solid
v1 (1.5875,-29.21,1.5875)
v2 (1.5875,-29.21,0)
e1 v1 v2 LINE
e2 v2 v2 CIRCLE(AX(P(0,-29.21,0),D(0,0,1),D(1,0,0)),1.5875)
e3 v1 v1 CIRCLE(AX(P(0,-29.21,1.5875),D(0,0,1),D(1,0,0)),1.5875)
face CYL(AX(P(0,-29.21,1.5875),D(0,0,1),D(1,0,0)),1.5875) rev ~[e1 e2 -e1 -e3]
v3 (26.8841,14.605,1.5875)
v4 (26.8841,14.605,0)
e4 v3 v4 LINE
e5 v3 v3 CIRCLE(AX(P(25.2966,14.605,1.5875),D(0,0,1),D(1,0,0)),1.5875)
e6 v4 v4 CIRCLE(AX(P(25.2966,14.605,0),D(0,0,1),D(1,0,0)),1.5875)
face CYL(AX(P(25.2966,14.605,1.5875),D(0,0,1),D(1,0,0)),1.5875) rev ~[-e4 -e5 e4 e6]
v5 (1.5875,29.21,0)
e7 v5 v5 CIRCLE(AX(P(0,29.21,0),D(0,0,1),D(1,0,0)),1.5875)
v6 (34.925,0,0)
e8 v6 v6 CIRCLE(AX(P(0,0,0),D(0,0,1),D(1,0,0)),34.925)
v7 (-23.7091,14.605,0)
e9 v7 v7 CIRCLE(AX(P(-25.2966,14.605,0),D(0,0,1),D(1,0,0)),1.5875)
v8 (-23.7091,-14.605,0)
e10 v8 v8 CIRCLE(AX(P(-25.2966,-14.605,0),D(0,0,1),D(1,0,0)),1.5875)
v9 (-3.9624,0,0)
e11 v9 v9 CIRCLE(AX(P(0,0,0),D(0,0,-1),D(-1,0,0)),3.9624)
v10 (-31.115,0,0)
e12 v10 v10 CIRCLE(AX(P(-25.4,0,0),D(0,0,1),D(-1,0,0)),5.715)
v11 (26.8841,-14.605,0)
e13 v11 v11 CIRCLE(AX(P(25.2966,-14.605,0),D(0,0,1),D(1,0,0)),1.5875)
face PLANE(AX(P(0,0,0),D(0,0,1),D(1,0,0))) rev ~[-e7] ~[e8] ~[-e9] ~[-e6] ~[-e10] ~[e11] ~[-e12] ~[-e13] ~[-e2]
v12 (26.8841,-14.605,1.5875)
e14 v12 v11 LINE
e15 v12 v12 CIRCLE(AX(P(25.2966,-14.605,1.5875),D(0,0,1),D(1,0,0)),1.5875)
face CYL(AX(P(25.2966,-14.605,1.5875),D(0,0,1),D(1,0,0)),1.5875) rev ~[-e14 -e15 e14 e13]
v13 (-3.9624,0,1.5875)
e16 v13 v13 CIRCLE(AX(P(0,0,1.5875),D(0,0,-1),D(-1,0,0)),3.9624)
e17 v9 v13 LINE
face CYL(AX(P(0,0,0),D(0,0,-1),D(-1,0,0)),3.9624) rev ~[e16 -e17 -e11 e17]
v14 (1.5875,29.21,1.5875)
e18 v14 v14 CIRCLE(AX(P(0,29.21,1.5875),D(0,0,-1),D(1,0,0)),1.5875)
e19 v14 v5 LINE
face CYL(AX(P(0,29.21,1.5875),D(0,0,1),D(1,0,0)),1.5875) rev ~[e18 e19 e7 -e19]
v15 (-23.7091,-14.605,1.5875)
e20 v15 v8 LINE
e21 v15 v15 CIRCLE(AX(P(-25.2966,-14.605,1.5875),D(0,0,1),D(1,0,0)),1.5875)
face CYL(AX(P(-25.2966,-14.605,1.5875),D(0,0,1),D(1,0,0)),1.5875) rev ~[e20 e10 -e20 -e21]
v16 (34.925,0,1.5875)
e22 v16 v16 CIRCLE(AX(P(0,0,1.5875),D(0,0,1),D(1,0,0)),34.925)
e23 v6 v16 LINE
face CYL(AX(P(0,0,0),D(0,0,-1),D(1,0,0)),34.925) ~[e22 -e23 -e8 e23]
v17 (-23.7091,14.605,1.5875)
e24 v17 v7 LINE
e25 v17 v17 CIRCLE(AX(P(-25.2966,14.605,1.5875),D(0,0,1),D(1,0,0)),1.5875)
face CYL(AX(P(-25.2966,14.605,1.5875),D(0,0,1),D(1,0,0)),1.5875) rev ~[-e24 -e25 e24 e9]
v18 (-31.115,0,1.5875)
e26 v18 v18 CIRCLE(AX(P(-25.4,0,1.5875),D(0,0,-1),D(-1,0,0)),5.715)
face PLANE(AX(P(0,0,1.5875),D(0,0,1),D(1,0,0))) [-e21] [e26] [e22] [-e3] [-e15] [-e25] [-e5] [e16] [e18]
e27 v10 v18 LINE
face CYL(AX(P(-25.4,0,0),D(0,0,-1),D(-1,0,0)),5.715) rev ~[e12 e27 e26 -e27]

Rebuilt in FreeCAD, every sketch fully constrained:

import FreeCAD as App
import Part
import Sketcher
from FreeCAD import Vector
Q = App.Units.Quantity

doc = App.newDocument("Part")
body = doc.addObject("PartDesign::Body", "Body")

sketch1 = body.newObject("Sketcher::SketchObject", "Sketch")
sketch1.AttachmentSupport = (doc.getObject("XY_Plane"), [""])
sketch1.MapMode = "FlatFace"
sketch1.addGeometry(Part.Circle(Vector(0, 0, 0), Vector(0, 0, 1), 35), False)
sketch1.addConstraint([
    Sketcher.Constraint("Coincident", 0, 3, -1, 1),
    Sketcher.Constraint("Diameter", 0, Q("2.75 in")),
])
pad1 = body.newObject("PartDesign::Pad", "Pad")
pad1.Profile = sketch1
pad1.Length = Q("0.0625 in")

sketch2 = body.newObject("Sketcher::SketchObject", "Sketch001")
sketch2.AttachmentSupport = (doc.getObject("XY_Plane"), [""])
sketch2.MapMode = "FlatFace"
sketch2.AttachmentOffset = App.Placement(Vector(0, 0, 0.0625 * 25.4), App.Rotation())
sketch2.addGeometry([
    Part.Circle(Vector(0, 29.2, 0), Vector(0, 0, 1), 1.6),
    Part.Circle(Vector(-25.3, 14.6, 0), Vector(0, 0, 1), 1.6),
    Part.Circle(Vector(-25.3, -14.6, 0), Vector(0, 0, 1), 1.6),
    Part.Circle(Vector(0, -29.2, 0), Vector(0, 0, 1), 1.6),
    Part.Circle(Vector(25.3, -14.6, 0), Vector(0, 0, 1), 1.6),
    Part.Circle(Vector(25.3, 14.6, 0), Vector(0, 0, 1), 1.6),
], False)
sketch2.addConstraint([
    Sketcher.Constraint("Equal", 0, 1),
    Sketcher.Constraint("Equal", 1, 2),
    Sketcher.Constraint("Equal", 2, 3),
    Sketcher.Constraint("Equal", 3, 4),
    Sketcher.Constraint("Equal", 4, 5),
    Sketcher.Constraint("Symmetric", 0, 3, 3, 3, -1, 1),
    Sketcher.Constraint("Symmetric", 1, 3, 4, 3, -1, 1),
    Sketcher.Constraint("Symmetric", 2, 3, 5, 3, -1, 1),
    Sketcher.Constraint("Symmetric", 2, 3, 4, 3, -2),
    Sketcher.Constraint("PointOnObject", 0, 3, -2),
    Sketcher.Constraint("Diameter", 0, Q("0.125 in")),
    Sketcher.Constraint("DistanceY", -1, 1, 0, 3, Q("1.15 in")),
    Sketcher.Constraint("DistanceY", 2, 3, 1, 3, Q("1.15 in")),
    Sketcher.Constraint("DistanceX", 1, 3, -1, 1, Q("25.2966 mm")),
])
pocket1 = body.newObject("PartDesign::Pocket", "Pocket")
pocket1.Profile = sketch2
pocket1.Length = Q("0.0975 in")

sketch3 = body.newObject("Sketcher::SketchObject", "Sketch002")
sketch3.AttachmentSupport = (doc.getObject("XY_Plane"), [""])
sketch3.MapMode = "FlatFace"
sketch3.addGeometry(Part.Circle(Vector(-25, 0, 0), Vector(0, 0, 1), 6), False)
sketch3.addConstraint([
    Sketcher.Constraint("PointOnObject", 0, 3, -1),
    Sketcher.Constraint("Diameter", 0, Q("0.45 in")),
    Sketcher.Constraint("DistanceX", 0, 3, -1, 1, Q("1 in")),
])
pocket2 = body.newObject("PartDesign::Pocket", "Pocket001")
pocket2.Profile = sketch3
pocket2.Length = Q("0.0975 in")
pocket2.Reversed = True

sketch4 = body.newObject("Sketcher::SketchObject", "Sketch003")
sketch4.AttachmentSupport = (doc.getObject("XY_Plane"), [""])
sketch4.MapMode = "FlatFace"
sketch4.addGeometry(Part.Circle(Vector(0, 0, 0), Vector(0, 0, 1), 4), False)
sketch4.addConstraint([
    Sketcher.Constraint("Coincident", 0, 3, -1, 1),
    Sketcher.Constraint("Diameter", 0, Q("0.312 in")),
])
pocket3 = body.newObject("PartDesign::Pocket", "Pocket002")
pocket3.Profile = sketch4
pocket3.Length = Q("0.0975 in")
pocket3.Reversed = True

doc.recompute()
